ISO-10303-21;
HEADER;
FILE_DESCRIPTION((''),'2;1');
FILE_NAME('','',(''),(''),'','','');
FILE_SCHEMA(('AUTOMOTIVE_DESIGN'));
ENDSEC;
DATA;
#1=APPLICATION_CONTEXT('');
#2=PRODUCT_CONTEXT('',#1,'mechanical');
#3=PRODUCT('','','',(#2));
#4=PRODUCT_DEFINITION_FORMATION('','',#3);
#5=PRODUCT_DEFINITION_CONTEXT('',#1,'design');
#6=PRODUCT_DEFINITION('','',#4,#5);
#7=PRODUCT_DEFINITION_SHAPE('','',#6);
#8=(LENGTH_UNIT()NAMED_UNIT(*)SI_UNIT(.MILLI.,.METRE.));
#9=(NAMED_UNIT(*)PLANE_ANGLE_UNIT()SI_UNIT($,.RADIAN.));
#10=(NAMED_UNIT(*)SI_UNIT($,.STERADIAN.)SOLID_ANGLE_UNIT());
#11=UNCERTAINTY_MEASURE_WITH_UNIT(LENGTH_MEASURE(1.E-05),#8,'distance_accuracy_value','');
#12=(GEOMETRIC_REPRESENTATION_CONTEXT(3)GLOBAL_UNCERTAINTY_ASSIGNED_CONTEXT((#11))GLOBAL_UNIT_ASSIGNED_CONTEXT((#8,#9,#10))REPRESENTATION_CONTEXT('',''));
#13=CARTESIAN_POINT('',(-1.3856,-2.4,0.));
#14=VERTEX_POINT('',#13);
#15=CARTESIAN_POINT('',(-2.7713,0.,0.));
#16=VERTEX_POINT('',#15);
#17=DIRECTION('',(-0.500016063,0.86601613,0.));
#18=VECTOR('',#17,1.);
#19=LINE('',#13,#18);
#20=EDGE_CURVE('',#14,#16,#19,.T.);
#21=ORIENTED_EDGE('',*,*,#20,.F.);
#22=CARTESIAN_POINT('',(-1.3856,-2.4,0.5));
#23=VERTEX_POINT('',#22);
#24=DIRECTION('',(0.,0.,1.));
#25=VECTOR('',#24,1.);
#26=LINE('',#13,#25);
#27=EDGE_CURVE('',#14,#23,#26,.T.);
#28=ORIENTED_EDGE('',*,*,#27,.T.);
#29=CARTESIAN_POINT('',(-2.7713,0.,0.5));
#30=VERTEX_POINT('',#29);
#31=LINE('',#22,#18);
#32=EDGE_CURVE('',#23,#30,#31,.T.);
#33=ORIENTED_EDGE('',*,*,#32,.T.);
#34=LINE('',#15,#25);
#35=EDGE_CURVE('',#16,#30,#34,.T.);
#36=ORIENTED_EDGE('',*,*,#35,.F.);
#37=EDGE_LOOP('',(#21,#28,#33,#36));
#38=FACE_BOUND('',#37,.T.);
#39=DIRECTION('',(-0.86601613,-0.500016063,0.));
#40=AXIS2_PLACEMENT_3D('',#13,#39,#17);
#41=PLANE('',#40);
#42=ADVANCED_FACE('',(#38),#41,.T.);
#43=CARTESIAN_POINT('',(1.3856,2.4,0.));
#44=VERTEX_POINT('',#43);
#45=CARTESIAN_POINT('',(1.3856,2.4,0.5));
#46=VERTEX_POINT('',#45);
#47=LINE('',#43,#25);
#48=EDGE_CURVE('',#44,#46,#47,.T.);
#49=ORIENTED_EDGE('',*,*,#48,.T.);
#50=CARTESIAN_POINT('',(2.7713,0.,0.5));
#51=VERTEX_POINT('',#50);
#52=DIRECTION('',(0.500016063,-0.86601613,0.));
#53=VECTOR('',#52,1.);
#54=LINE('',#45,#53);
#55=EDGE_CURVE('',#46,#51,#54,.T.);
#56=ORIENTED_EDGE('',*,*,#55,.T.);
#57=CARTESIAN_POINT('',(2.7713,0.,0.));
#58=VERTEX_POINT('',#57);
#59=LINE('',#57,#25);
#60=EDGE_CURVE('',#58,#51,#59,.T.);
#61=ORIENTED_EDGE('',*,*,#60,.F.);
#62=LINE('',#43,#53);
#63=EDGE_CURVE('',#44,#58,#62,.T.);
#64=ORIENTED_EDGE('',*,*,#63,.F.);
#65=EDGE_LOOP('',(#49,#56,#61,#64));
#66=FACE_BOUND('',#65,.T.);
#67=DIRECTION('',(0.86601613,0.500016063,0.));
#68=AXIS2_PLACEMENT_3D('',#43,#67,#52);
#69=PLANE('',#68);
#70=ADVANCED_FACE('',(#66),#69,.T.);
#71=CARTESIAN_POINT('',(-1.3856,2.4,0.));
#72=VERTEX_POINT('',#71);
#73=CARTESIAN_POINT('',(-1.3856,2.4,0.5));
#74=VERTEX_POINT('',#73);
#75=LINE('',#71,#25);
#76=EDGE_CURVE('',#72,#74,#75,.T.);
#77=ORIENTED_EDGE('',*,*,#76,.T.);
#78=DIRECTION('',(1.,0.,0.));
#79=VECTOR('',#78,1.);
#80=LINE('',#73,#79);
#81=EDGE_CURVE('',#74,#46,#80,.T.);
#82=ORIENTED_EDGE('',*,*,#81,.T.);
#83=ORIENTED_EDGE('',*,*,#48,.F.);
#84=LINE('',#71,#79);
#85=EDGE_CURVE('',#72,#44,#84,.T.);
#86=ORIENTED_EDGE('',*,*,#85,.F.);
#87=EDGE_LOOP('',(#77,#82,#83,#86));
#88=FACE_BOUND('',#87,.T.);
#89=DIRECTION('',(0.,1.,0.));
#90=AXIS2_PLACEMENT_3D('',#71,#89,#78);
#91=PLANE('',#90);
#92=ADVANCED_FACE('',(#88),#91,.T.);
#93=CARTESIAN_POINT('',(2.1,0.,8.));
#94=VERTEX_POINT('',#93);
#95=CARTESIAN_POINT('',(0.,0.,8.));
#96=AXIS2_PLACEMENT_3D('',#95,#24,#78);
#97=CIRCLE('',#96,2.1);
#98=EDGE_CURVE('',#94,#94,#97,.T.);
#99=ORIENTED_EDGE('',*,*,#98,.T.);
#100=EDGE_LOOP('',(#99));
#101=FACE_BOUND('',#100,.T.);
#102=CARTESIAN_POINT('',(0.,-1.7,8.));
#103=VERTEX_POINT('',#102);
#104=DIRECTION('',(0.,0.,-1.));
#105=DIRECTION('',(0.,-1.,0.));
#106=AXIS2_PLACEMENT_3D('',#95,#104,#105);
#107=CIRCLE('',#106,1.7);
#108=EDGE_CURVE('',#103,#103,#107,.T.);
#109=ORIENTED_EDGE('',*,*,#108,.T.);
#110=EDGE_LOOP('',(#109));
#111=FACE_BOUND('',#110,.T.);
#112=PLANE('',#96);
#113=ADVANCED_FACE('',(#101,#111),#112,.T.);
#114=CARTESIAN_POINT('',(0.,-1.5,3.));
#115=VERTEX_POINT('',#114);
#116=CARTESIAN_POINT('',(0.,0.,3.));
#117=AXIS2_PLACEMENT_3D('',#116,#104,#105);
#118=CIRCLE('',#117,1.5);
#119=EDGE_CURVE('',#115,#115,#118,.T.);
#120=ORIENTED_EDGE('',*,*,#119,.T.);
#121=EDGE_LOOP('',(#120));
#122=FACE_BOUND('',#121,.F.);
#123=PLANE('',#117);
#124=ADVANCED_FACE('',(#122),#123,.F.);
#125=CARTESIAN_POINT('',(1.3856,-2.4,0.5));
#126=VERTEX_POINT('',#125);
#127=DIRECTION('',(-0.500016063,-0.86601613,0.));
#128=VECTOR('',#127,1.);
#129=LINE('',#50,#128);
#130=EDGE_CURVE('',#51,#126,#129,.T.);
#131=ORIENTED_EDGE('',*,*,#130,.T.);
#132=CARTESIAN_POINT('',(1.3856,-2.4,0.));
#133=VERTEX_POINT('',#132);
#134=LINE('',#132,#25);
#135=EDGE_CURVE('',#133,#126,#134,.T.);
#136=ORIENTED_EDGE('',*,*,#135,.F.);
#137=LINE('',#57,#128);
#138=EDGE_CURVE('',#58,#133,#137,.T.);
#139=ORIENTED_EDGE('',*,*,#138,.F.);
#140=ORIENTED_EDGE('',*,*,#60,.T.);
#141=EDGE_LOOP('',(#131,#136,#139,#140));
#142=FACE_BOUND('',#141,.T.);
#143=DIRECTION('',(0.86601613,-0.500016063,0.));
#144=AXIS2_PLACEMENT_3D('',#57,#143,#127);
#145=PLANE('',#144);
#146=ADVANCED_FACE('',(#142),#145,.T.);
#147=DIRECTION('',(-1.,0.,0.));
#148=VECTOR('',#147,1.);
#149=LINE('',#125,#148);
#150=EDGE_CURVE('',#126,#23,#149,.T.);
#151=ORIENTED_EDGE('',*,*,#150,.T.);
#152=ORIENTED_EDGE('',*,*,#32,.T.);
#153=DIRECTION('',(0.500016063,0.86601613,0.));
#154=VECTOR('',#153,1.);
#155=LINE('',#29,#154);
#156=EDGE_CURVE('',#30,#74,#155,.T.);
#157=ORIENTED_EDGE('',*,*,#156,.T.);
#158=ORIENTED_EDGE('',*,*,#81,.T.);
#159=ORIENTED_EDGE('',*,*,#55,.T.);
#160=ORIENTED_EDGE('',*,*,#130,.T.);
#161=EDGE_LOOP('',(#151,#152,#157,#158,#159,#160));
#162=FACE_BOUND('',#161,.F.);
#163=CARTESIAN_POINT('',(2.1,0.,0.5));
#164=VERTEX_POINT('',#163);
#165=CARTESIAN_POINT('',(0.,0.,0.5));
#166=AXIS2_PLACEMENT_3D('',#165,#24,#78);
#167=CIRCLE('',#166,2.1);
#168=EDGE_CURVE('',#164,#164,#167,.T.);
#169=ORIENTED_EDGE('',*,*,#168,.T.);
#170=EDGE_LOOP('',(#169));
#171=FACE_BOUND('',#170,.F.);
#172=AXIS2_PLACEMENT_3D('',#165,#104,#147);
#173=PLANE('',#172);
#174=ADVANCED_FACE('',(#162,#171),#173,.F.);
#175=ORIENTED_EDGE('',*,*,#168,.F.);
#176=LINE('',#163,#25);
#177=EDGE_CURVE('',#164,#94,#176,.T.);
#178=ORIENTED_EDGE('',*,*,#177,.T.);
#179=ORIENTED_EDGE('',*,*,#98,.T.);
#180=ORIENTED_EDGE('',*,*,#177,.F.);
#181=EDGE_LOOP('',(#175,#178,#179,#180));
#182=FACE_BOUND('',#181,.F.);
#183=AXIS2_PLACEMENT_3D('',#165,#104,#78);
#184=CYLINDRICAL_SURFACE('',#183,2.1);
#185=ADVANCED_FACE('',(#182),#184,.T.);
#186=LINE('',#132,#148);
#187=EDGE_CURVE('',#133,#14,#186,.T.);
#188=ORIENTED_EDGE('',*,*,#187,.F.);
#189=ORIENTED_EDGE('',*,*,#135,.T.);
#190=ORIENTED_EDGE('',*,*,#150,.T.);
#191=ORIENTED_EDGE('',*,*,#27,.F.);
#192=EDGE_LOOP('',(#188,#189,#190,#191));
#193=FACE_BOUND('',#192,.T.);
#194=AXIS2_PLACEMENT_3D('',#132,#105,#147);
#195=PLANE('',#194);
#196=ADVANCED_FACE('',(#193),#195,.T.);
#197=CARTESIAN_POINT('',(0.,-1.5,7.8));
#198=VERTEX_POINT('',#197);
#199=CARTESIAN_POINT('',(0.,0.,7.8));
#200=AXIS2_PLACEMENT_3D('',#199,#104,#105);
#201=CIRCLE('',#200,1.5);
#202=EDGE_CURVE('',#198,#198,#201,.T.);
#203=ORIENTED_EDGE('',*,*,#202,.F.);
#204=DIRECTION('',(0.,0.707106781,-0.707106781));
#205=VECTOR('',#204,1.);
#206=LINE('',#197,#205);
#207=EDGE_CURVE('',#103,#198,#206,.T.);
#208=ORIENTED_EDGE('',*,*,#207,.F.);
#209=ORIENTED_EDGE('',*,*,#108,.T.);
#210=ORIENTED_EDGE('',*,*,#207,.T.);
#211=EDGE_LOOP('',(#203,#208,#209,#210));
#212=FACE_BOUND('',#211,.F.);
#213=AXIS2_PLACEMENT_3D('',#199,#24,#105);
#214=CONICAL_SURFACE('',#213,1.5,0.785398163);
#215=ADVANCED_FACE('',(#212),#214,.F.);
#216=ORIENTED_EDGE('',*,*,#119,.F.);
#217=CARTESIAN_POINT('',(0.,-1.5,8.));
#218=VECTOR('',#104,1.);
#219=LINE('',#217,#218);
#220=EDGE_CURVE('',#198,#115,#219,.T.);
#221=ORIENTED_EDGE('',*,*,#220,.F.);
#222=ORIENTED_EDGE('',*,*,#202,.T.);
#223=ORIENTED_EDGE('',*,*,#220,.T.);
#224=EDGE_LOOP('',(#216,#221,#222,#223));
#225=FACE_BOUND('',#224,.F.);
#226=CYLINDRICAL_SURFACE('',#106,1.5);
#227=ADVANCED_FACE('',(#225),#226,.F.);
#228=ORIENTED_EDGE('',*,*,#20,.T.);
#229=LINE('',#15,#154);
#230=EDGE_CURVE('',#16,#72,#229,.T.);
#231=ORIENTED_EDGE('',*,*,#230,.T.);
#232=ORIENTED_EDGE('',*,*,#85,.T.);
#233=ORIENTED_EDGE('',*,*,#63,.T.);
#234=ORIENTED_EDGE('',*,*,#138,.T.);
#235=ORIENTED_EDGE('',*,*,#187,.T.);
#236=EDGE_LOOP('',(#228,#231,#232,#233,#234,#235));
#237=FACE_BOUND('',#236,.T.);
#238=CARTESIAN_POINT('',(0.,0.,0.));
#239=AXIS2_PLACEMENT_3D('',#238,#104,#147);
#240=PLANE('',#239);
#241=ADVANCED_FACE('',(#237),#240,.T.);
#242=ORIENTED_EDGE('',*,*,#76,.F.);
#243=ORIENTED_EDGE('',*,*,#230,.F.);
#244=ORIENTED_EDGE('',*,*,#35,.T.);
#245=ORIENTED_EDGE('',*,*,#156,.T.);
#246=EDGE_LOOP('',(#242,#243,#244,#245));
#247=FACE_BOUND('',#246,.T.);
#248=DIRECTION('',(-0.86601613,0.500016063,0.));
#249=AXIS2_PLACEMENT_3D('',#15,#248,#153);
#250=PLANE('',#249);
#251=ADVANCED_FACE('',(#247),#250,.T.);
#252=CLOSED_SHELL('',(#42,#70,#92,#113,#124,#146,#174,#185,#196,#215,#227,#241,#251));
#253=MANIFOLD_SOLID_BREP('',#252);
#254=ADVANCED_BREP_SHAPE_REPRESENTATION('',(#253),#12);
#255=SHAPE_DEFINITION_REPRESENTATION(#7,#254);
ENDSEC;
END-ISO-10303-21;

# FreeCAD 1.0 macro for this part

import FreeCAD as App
import Part
import Sketcher
Q = App.Units.Quantity


def edges_at(feature, points):
    """Names of the edges that pass closest to the given points."""
    edges = feature.Shape.Edges
    near = lambda p: min(range(len(edges)), key=lambda i: edges[i].distToShape(Part.Vertex(*p))[0])
    return sorted({f"Edge{near(p) + 1}" for p in points})

doc = App.newDocument("Part")
body = doc.addObject("PartDesign::Body", "Body")

# Sketch on XY plane
sketch1 = body.newObject("Sketcher::SketchObject", "Sketch")
sketch1.AttachmentSupport = (doc.getObject("XY_Plane"), [""])
sketch1.MapMode = "FlatFace"
sketch1.addGeometry(Part.LineSegment(App.Vector(1.4, 2.4, 0), App.Vector(-1.4, 2.4, 0)), False)
sketch1.addGeometry(Part.LineSegment(App.Vector(-1.4, 2.4, 0), App.Vector(-2.8, 0, 0)), False)
sketch1.addGeometry(Part.LineSegment(App.Vector(-2.8, 0, 0), App.Vector(-1.4, -2.4, 0)), False)
sketch1.addGeometry(Part.LineSegment(App.Vector(-1.4, -2.4, 0), App.Vector(1.4, -2.4, 0)), False)
sketch1.addGeometry(Part.LineSegment(App.Vector(1.4, -2.4, 0), App.Vector(2.8, 0, 0)), False)
sketch1.addGeometry(Part.LineSegment(App.Vector(2.8, 0, 0), App.Vector(1.4, 2.4, 0)), False)
sketch1.addConstraint(Sketcher.Constraint("Coincident", 0, 2, 1, 1))
sketch1.addConstraint(Sketcher.Constraint("Coincident", 1, 2, 2, 1))
sketch1.addConstraint(Sketcher.Constraint("Coincident", 2, 2, 3, 1))
sketch1.addConstraint(Sketcher.Constraint("Coincident", 3, 2, 4, 1))
sketch1.addConstraint(Sketcher.Constraint("Coincident", 4, 2, 5, 1))
sketch1.addConstraint(Sketcher.Constraint("Coincident", 5, 2, 0, 1))
sketch1.addConstraint(Sketcher.Constraint("Horizontal", 0))
sketch1.addConstraint(Sketcher.Constraint("Horizontal", 3))
sketch1.addConstraint(Sketcher.Constraint("Symmetric", 0, 2, 3, 2, -1, 1))
sketch1.addConstraint(Sketcher.Constraint("Symmetric", 1, 2, 4, 2, -1, 1))
sketch1.addConstraint(Sketcher.Constraint("PointOnObject", 1, 2, -1))
sketch1.addConstraint(Sketcher.Constraint("Parallel", 2, 5))
sketch1.addConstraint(Sketcher.Constraint("Vertical", 0, 2, 2, 2))
sketch1.addConstraint(Sketcher.Constraint("Angle", 1, Q("-120.001 deg")))
sketch1.addConstraint(Sketcher.Constraint("DistanceY", -1, 1, 0, 2, Q("2.4 mm")))
sketch1.addConstraint(Sketcher.Constraint("DistanceX", 0, 2, 0, 1, Q("2.7712 mm")))
pad1 = body.newObject("PartDesign::Pad", "Pad")
pad1.Profile = sketch1
pad1.Length = 0.5

# Sketch on XY plane
sketch2 = body.newObject("Sketcher::SketchObject", "Sketch001")
sketch2.AttachmentSupport = (doc.getObject("XY_Plane"), [""])
sketch2.MapMode = "FlatFace"
sketch2.AttachmentOffset = App.Placement(App.Vector(0, 0, 0.5), App.Rotation())
sketch2.addGeometry(Part.Circle(App.Vector(0, 0, 0), App.Vector(0, 0, 1), 2.1), False)
sketch2.addConstraint(Sketcher.Constraint("Coincident", 0, 3, -1, 1))
sketch2.addConstraint(Sketcher.Constraint("Diameter", 0, Q("4.2 mm")))
pad2 = body.newObject("PartDesign::Pad", "Pad001")
pad2.Profile = sketch2
pad2.Length = 7.5

# Sketch on XY plane
sketch3 = body.newObject("Sketcher::SketchObject", "Sketch002")
sketch3.AttachmentSupport = (doc.getObject("XY_Plane"), [""])
sketch3.MapMode = "FlatFace"
sketch3.AttachmentOffset = App.Placement(App.Vector(0, 0, 8), App.Rotation())
sketch3.addGeometry(Part.Circle(App.Vector(0, 0, 0), App.Vector(0, 0, 1), 1.5), False)
sketch3.addConstraint(Sketcher.Constraint("Coincident", 0, 3, -1, 1))
sketch3.addConstraint(Sketcher.Constraint("Diameter", 0, Q("3 mm")))
doc.recompute()
hole = body.newObject("PartDesign::Hole", "Hole")
hole.Profile = sketch3
hole.ThreadType = "None"
hole.Diameter = 3
hole.DepthType = "Dimension"
hole.Depth = 5
hole.DrillPoint = "Flat"
doc.recompute()

chamfer = body.newObject("PartDesign::Chamfer", "Chamfer")
chamfer.Base = (hole, edges_at(hole, [(0, 1.5, 8)]))
chamfer.Size = 0.2

doc.recompute()
